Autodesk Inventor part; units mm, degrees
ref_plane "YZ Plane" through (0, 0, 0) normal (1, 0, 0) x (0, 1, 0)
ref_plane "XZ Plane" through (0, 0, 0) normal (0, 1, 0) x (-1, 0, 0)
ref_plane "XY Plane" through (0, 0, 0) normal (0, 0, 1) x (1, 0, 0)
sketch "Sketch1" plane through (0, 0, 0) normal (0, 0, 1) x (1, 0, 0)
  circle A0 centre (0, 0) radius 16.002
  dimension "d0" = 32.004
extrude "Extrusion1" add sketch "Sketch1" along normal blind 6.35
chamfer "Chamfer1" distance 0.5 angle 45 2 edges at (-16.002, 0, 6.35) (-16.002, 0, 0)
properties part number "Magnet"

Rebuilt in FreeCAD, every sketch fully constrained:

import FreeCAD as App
import Part
import Sketcher
Q = App.Units.Quantity


def edges_at(feature, points):
    """Names of the edges that pass closest to the given points."""
    edges = feature.Shape.Edges
    near = lambda p: min(range(len(edges)), key=lambda i: edges[i].distToShape(Part.Vertex(*p))[0])
    return sorted({f"Edge{near(p) + 1}" for p in points})

doc = App.newDocument("Part")
params = doc.addObject("Spreadsheet::Sheet", "Params")
for row, (alias, value) in enumerate([
    ("sketch1_diameter", "1.26 in"),
    ("pad1_length", "0.25 in"),
    ("chamfer_size", "0.5 mm"),
], start=1):
    params.set(f"A{row}", alias)
    params.set(f"B{row}", "=" + value)
    params.setAlias(f"B{row}", alias)

body = doc.addObject("PartDesign::Body", "Body")

# Sketch on XY plane
sketch1 = body.newObject("Sketcher::SketchObject", "Sketch")
sketch1.AttachmentSupport = (doc.getObject("XY_Plane"), [""])
sketch1.MapMode = "FlatFace"
sketch1.addGeometry(Part.Circle(App.Vector(0, 0, 0), App.Vector(0, 0, 1), 16), False)
sketch1.addConstraint(Sketcher.Constraint("Coincident", 0, 3, -1, 1))
sketch1.addConstraint(Sketcher.Constraint("Diameter", 0, Q("1.26 in")))
sketch1.setExpression("Constraints[1]", "Params.sketch1_diameter")
pad1 = body.newObject("PartDesign::Pad", "Pad")
pad1.Profile = sketch1
pad1.setExpression("Length", "Params.pad1_length")
doc.recompute()

chamfer = body.newObject("PartDesign::Chamfer", "Chamfer")
chamfer.Base = (pad1, edges_at(pad1, [(-16.002, 0, 6.35), (-16.002, 0, 0)]))
chamfer.setExpression("Size", "Params.chamfer_size")

doc.recompute()
